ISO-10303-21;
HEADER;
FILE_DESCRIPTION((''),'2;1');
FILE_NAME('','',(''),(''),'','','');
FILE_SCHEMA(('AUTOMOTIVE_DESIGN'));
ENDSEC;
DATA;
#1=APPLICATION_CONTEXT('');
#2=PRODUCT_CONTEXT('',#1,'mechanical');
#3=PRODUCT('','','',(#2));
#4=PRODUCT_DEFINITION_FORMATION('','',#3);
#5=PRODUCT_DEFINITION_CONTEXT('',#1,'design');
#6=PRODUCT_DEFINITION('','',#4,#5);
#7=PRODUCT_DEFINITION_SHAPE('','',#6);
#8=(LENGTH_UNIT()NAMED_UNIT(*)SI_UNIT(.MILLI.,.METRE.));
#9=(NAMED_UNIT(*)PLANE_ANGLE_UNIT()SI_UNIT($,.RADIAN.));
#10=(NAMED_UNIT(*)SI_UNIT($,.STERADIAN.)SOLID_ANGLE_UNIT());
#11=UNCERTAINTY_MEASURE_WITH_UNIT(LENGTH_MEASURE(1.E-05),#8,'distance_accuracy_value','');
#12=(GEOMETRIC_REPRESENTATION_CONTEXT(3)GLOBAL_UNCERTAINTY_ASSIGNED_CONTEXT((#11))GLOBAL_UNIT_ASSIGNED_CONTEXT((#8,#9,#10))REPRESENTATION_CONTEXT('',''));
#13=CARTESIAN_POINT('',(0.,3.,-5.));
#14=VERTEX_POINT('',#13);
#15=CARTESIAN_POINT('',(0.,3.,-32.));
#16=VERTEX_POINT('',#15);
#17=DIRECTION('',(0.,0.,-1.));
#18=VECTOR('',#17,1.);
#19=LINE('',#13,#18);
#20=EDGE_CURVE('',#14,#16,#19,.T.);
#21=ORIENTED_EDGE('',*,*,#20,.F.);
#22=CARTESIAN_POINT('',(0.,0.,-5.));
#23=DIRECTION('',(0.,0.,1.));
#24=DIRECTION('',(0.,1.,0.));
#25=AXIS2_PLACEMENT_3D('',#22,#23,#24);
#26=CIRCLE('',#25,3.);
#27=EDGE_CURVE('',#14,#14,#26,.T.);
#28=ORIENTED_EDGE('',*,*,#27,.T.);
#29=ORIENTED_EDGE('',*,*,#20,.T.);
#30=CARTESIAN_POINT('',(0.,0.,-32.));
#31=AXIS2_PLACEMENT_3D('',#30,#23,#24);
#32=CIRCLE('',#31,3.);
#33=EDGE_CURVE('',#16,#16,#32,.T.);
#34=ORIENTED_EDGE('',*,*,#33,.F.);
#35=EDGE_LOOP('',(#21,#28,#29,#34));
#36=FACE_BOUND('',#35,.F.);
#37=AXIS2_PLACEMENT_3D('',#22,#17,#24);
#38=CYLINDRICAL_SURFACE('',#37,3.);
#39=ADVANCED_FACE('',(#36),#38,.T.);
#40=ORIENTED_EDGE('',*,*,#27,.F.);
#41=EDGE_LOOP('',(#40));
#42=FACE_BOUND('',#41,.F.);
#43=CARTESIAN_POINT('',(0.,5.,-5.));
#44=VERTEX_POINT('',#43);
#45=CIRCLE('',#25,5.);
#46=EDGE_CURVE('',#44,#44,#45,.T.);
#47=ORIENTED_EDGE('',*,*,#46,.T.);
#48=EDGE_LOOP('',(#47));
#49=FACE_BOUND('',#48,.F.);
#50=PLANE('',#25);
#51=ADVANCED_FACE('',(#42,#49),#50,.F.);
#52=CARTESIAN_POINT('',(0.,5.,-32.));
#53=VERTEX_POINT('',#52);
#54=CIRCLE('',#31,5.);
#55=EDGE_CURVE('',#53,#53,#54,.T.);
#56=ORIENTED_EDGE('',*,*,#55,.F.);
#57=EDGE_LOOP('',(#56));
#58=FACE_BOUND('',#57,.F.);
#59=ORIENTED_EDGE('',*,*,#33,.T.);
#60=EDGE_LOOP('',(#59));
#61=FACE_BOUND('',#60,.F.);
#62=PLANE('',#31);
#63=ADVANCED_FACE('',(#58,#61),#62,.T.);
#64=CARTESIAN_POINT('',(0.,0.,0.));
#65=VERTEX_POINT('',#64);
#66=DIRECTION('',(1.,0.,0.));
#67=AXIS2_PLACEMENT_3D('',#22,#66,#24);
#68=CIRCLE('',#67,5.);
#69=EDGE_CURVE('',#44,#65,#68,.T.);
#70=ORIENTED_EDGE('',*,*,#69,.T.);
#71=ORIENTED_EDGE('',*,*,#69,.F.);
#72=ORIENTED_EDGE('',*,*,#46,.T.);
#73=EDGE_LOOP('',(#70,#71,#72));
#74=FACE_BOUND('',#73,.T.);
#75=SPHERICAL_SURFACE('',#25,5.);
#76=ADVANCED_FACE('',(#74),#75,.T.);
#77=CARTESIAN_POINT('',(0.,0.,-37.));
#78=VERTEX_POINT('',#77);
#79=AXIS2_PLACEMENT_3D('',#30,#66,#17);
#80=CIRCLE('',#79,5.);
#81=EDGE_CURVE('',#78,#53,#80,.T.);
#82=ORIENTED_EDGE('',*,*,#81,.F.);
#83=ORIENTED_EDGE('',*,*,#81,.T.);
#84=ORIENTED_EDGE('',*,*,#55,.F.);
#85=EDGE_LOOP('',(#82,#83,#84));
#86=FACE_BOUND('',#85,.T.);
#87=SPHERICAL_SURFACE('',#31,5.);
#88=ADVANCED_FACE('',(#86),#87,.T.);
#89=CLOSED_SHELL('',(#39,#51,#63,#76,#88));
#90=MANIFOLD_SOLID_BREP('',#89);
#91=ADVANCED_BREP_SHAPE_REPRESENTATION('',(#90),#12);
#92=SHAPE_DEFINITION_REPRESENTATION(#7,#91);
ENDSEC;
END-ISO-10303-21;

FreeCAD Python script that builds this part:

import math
import FreeCAD as App
import Part
import Sketcher
from FreeCAD import Vector

doc = App.newDocument("Part")
params = doc.addObject("Spreadsheet::Sheet", "Params")
for row, (alias, value) in enumerate([
    ("sketch1_radius", "5 mm"),
    ("sketch1_width", "2 mm"),
    ("sketch1_height", "27 mm"),
    ("revolution_angle", "360 deg"),
], start=1):
    params.set(f"A{row}", alias)
    params.set(f"B{row}", "=" + value)
    params.setAlias(f"B{row}", alias)

body = doc.addObject("PartDesign::Body", "Body")

# Sketch on YZ plane
sketch1 = body.newObject("Sketcher::SketchObject", "Sketch")
sketch1.AttachmentSupport = (doc.getObject("YZ_Plane"), [""])
sketch1.MapMode = "FlatFace"
sketch1.addGeometry(Part.LineSegment(Vector(3, -5, 0), Vector(5, -5, 0)), False)
sketch1.addGeometry(Part.ArcOfCircle(Part.Circle(Vector(0, -5, 0), Vector(0, 0, 1), 5), math.radians(0), math.radians(90)), False)
sketch1.addGeometry(Part.LineSegment(Vector(0, 0, 0), Vector(0, -37, 0)), False)
sketch1.addGeometry(Part.ArcOfCircle(Part.Circle(Vector(0, -32, 0), Vector(0, 0, 1), 5), math.radians(-90), math.radians(0)), False)
sketch1.addGeometry(Part.LineSegment(Vector(5, -32, 0), Vector(3, -32, 0)), False)
sketch1.addGeometry(Part.LineSegment(Vector(3, -32, 0), Vector(3, -5, 0)), False)
sketch1.addConstraint(Sketcher.Constraint("Coincident", 0, 2, 1, 1))
sketch1.addConstraint(Sketcher.Constraint("Coincident", 1, 2, 2, 1))
sketch1.addConstraint(Sketcher.Constraint("Coincident", 2, 2, 3, 1))
sketch1.addConstraint(Sketcher.Constraint("Coincident", 3, 2, 4, 1))
sketch1.addConstraint(Sketcher.Constraint("Coincident", 4, 2, 5, 1))
sketch1.addConstraint(Sketcher.Constraint("Coincident", 5, 2, 0, 1))
sketch1.addConstraint(Sketcher.Constraint("Horizontal", 0))
sketch1.addConstraint(Sketcher.Constraint("Vertical", 2))
sketch1.addConstraint(Sketcher.Constraint("Horizontal", 4))
sketch1.addConstraint(Sketcher.Constraint("Vertical", 5))
sketch1.addConstraint(Sketcher.Constraint("Coincident", 1, 2, -1, 1))
sketch1.addConstraint(Sketcher.Constraint("Equal", 1, 3))
sketch1.addConstraint(Sketcher.Constraint("PointOnObject", 1, 3, -2))
sketch1.addConstraint(Sketcher.Constraint("PointOnObject", 3, 3, -2))
sketch1.addConstraint(Sketcher.Constraint("Horizontal", 1, 3, 0, 2))
sketch1.addConstraint(Sketcher.Constraint("Radius", 1, 5.0))
sketch1.addConstraint(Sketcher.Constraint("DistanceX", 0, 1, 0, 2, 2.0))
sketch1.addConstraint(Sketcher.Constraint("DistanceY", 5, 1, 5, 2, 27.0))
sketch1.addConstraint(Sketcher.Constraint("DistanceY", 3, 3, 1, 3, 27.0))
sketch1.setExpression("Constraints[15]", "Params.sketch1_radius")
sketch1.setExpression("Constraints[16]", "Params.sketch1_width")
sketch1.setExpression("Constraints[17]", "Params.sketch1_height")
revolution = body.newObject("PartDesign::Revolution", "Revolution")
revolution.Profile = sketch1
revolution.ReferenceAxis = (sketch1, ["V_Axis"])
revolution.setExpression("Angle", "Params.revolution_angle")

doc.recompute()
